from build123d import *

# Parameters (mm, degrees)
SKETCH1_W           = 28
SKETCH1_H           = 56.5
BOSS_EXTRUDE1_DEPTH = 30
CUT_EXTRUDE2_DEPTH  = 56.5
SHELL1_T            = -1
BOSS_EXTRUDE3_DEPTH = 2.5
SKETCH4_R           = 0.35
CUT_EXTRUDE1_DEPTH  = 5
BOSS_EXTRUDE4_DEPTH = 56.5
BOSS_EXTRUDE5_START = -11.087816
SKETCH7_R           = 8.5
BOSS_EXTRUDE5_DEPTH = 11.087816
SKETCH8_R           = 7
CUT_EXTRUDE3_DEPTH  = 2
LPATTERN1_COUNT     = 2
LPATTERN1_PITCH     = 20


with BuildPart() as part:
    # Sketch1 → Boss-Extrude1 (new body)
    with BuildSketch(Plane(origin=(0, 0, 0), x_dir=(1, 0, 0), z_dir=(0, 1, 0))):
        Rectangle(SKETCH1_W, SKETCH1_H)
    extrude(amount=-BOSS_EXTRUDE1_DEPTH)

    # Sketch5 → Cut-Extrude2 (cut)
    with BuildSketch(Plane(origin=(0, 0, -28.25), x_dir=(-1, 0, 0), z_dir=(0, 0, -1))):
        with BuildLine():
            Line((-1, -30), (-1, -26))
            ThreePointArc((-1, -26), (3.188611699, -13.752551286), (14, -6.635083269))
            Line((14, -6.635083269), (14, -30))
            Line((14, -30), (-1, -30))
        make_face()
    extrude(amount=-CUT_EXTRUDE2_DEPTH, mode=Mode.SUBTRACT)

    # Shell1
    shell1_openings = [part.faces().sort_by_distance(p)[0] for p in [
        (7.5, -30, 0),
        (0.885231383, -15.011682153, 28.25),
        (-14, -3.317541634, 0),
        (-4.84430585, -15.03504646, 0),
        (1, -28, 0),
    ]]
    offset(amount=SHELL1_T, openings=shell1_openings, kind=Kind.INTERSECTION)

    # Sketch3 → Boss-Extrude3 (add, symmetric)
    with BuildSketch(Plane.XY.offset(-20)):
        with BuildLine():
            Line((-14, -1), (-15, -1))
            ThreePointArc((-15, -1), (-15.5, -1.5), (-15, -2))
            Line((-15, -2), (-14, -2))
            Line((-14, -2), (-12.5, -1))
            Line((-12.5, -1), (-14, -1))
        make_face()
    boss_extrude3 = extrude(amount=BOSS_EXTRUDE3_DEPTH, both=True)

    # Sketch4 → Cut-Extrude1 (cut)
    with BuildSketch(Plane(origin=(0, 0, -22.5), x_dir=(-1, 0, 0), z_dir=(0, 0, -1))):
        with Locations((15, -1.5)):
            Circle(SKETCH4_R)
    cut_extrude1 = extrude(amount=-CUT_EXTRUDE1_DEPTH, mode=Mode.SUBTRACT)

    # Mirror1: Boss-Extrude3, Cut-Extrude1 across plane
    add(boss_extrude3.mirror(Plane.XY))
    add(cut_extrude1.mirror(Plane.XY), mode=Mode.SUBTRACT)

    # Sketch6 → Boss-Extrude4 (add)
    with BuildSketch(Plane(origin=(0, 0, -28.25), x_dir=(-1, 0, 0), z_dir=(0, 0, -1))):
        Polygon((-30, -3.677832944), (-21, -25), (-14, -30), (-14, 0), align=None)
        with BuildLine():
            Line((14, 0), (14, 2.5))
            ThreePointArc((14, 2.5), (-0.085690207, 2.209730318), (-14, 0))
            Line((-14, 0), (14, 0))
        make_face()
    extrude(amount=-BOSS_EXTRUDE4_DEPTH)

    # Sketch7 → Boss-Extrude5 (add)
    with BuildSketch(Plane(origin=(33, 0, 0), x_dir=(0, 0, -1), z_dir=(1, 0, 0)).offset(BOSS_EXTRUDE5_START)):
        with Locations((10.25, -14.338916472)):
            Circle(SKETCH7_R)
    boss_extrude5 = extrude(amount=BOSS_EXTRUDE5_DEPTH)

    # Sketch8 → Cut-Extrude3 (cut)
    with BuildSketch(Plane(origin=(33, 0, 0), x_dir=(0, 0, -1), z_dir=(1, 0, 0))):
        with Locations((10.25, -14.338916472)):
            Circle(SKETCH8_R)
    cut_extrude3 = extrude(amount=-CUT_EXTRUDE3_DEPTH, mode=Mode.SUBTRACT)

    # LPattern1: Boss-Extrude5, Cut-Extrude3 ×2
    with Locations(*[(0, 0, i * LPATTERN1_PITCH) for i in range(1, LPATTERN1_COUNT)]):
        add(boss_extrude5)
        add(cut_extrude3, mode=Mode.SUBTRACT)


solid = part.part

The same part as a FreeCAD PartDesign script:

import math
import FreeCAD as App
import Part
import Sketcher
from FreeCAD import Vector


def faces_at(feature, points):
    """Names of the faces that lie closest to the given points."""
    faces = feature.Shape.Faces
    near = lambda p: min(range(len(faces)), key=lambda i: faces[i].distToShape(Part.Vertex(*p))[0])
    return sorted({f"Face{near(p) + 1}" for p in points})


def add_polygon(sketch, points):
    """Adds a closed chain of lines whose ends are joined by coincident constraints."""
    first, n = sketch.GeometryCount, len(points)
    for a, b in zip(points, points[1:] + points[:1]):
        sketch.addGeometry(Part.LineSegment(App.Vector(*a, 0), App.Vector(*b, 0)), False)
    for i in range(n):
        sketch.addConstraint(Sketcher.Constraint("Coincident", first + i, 2, first + (i + 1) % n, 1))

doc = App.newDocument("Part")
body = doc.addObject("PartDesign::Body", "Body")

# Sketch on XZ plane
sketch1 = doc.addObject("Sketcher::SketchObject", "Sketch")
body.addObject(sketch1)
sketch1.AttachmentSupport = (doc.XZ_Plane, [""])
sketch1.MapMode = "FlatFace"
add_polygon(sketch1, [(-14, -28), (-14, 28), (14, 28), (14, -28)])  # lines 0-3
sketch1.addConstraint(Sketcher.Constraint("Vertical", 0))
sketch1.addConstraint(Sketcher.Constraint("Horizontal", 1))
sketch1.addConstraint(Sketcher.Constraint("Vertical", 2))
sketch1.addConstraint(Sketcher.Constraint("Horizontal", 3))
sketch1.addConstraint(Sketcher.Constraint("Symmetric", 0, 2, 2, 2, -1, 1))
sketch1.addConstraint(Sketcher.Constraint("DistanceX", 1, 1, 1, 2, 28.0))
sketch1.addConstraint(Sketcher.Constraint("DistanceY", 0, 1, 0, 2, 56.5))
pad1 = doc.addObject("PartDesign::Pad", "Pad")
body.addObject(pad1)
pad1.Profile = sketch1
pad1.Length = 30

# Sketch on XY plane
sketch2 = doc.addObject("Sketcher::SketchObject", "Sketch001")
body.addObject(sketch2)
sketch2.AttachmentSupport = (doc.XY_Plane, [""])
sketch2.MapMode = "FlatFace"
sketch2.AttachmentOffset = App.Placement(Vector(0, 0, -28.25), App.Rotation())
sketch2.addGeometry(Part.LineSegment(Vector(1, -26, 0), Vector(1, -30, 0)), False)
sketch2.addGeometry(Part.LineSegment(Vector(1, -30, 0), Vector(-14, -30, 0)), False)
sketch2.addGeometry(Part.LineSegment(Vector(-14, -30, 0), Vector(-14, -6.6, 0)), False)
sketch2.addGeometry(Part.ArcOfCircle(Part.Circle(Vector(-19, -26, 0), Vector(0, 0, 1), 20), math.radians(0), math.radians(76)), False)
sketch2.addConstraint(Sketcher.Constraint("Coincident", 0, 2, 1, 1))
sketch2.addConstraint(Sketcher.Constraint("Coincident", 1, 2, 2, 1))
sketch2.addConstraint(Sketcher.Constraint("Coincident", 2, 2, 3, 2))
sketch2.addConstraint(Sketcher.Constraint("Tangent", 3, 1, 0, 1))
sketch2.addConstraint(Sketcher.Constraint("Vertical", 0))
sketch2.addConstraint(Sketcher.Constraint("Horizontal", 1))
sketch2.addConstraint(Sketcher.Constraint("Vertical", 2))
sketch2.addConstraint(Sketcher.Constraint("Radius", 3, 20.0))
sketch2.addConstraint(Sketcher.Constraint("DistanceX", 1, 2, 1, 1, 15.0))
sketch2.addConstraint(Sketcher.Constraint("DistanceY", 0, 2, 0, 1, 4.0))
sketch2.addConstraint(Sketcher.Constraint("DistanceX", 3, 3, -1, 1, 19.0))
sketch2.addConstraint(Sketcher.Constraint("DistanceY", 3, 3, -1, 1, 26.0))
pocket1 = doc.addObject("PartDesign::Pocket", "Pocket")
body.addObject(pocket1)
pocket1.Profile = sketch2
pocket1.Length = 56.5
pocket1.Reversed = True
doc.recompute()

thickness = doc.addObject("PartDesign::Thickness", "Thickness")
body.addObject(thickness)
thickness.Base = (pocket1, faces_at(pocket1, [
    (7.5, -30, 0),
    (0, -15, 28.25),
    (-14, -3.318, 0),
    (-3.189, -13.753, 0),
    (1, -28, 0),
]))
thickness.Value = 1
thickness.Reversed = True
thickness.Join = "Intersection"

# Sketch on XY plane
sketch3 = doc.addObject("Sketcher::SketchObject", "Sketch002")
body.addObject(sketch3)
sketch3.AttachmentSupport = (doc.XY_Plane, [""])
sketch3.MapMode = "FlatFace"
sketch3.AttachmentOffset = App.Placement(Vector(0, 0, -20), App.Rotation())
sketch3.addGeometry(Part.ArcOfCircle(Part.Circle(Vector(-15, -1.5, 0), Vector(0, 0, 1), 0.5), math.radians(90), math.radians(270)), False)
sketch3.addGeometry(Part.LineSegment(Vector(-15, -2, 0), Vector(-14, -2, 0)), False)
sketch3.addGeometry(Part.LineSegment(Vector(-14, -2, 0), Vector(-12.5, -1, 0)), False)
sketch3.addGeometry(Part.LineSegment(Vector(-12.5, -1, 0), Vector(-15, -1, 0)), False)
sketch3.addConstraint(Sketcher.Constraint("Tangent", 0, 2, 1, 1))
sketch3.addConstraint(Sketcher.Constraint("Coincident", 1, 2, 2, 1))
sketch3.addConstraint(Sketcher.Constraint("Coincident", 2, 2, 3, 1))
sketch3.addConstraint(Sketcher.Constraint("Tangent", 3, 2, 0, 1))
sketch3.addConstraint(Sketcher.Constraint("Horizontal", 1))
sketch3.addConstraint(Sketcher.Constraint("Horizontal", 3))
sketch3.addConstraint(Sketcher.Constraint("Radius", 0, 0.5))
sketch3.addConstraint(Sketcher.Constraint("DistanceX", 1, 1, 1, 2, 1.0))
sketch3.addConstraint(Sketcher.Constraint("DistanceX", 3, 2, 3, 1, 2.5))
sketch3.addConstraint(Sketcher.Constraint("DistanceX", 0, 3, -1, 1, 15.0))
sketch3.addConstraint(Sketcher.Constraint("DistanceY", 0, 2, -1, 1, 2.0))
pad2 = doc.addObject("PartDesign::Pad", "Pad001")
body.addObject(pad2)
pad2.Profile = sketch3
pad2.Length = 5
pad2.Midplane = True

# Sketch on XY plane
sketch4 = doc.addObject("Sketcher::SketchObject", "Sketch003")
body.addObject(sketch4)
sketch4.AttachmentSupport = (doc.XY_Plane, [""])
sketch4.MapMode = "FlatFace"
sketch4.AttachmentOffset = App.Placement(Vector(0, 0, -22.5), App.Rotation())
sketch4.addGeometry(Part.Circle(Vector(-15, -1.5, 0), Vector(0, 0, 1), 0.35), False)
sketch4.addConstraint(Sketcher.Constraint("Diameter", 0, 0.7))
sketch4.addConstraint(Sketcher.Constraint("DistanceX", 0, 3, -1, 1, 15.0))
sketch4.addConstraint(Sketcher.Constraint("DistanceY", 0, 3, -1, 1, 1.5))
pocket2 = doc.addObject("PartDesign::Pocket", "Pocket001")
body.addObject(pocket2)
pocket2.Profile = sketch4
pocket2.Length = 5
pocket2.Reversed = True
doc.recompute()

mirrored = doc.addObject("PartDesign::Mirrored", "Mirrored")
body.addObject(mirrored)
mirrored.Originals = [pad2, pocket2]
mirrored.MirrorPlane = (doc.XY_Plane, [""])
body.Tip = mirrored

# Sketch on XY plane
sketch5 = doc.addObject("Sketcher::SketchObject", "Sketch004")
body.addObject(sketch5)
sketch5.AttachmentSupport = (doc.XY_Plane, [""])
sketch5.MapMode = "FlatFace"
sketch5.AttachmentOffset = App.Placement(Vector(0, 0, -28.25), App.Rotation())
add_polygon(sketch5, [(30, -3.7), (21, -25), (14, -30), (14, 0)])  # lines 0-3
sketch5.addGeometry(Part.LineSegment(Vector(-14, 0, 0), Vector(-14, 2.5, 0)), False)  # 4
sketch5.addGeometry(Part.ArcOfCircle(Part.Circle(Vector(-9.1, -100.4, 0), Vector(0, 0, 1), 103), math.radians(77.05), math.radians(92.74)), False)  # 5
sketch5.addGeometry(Part.LineSegment(Vector(14, 0, 0), Vector(-14, 0, 0)), False)  # 6
sketch5.addConstraint(Sketcher.Constraint("Coincident", 4, 2, 5, 2))
sketch5.addConstraint(Sketcher.Constraint("Coincident", 5, 1, 6, 1))
sketch5.addConstraint(Sketcher.Constraint("Coincident", 6, 2, 4, 1))
sketch5.addConstraint(Sketcher.Constraint("Vertical", 2))
sketch5.addConstraint(Sketcher.Constraint("Vertical", 4))
sketch5.addConstraint(Sketcher.Constraint("Horizontal", 6))
sketch5.addConstraint(Sketcher.Constraint("Coincident", 5, 1, 2, 2))
sketch5.addConstraint(Sketcher.Constraint("Symmetric", 2, 2, 6, 2, -1, 1))
sketch5.addConstraint(Sketcher.Constraint("Radius", 5, 103.0))
sketch5.addConstraint(Sketcher.Constraint("DistanceX", 6, 2, 6, 1, 28.0))
sketch5.addConstraint(Sketcher.Constraint("DistanceY", 2, 1, 2, 2, 30.0))
sketch5.addConstraint(Sketcher.Constraint("DistanceY", 4, 1, 4, 2, 2.5))
sketch5.addConstraint(Sketcher.Constraint("DistanceX", -1, 1, 0, 2, 21.0))
sketch5.addConstraint(Sketcher.Constraint("DistanceY", 0, 2, -1, 1, 25.0))
sketch5.addConstraint(Sketcher.Constraint("DistanceX", -1, 1, 3, 2, 30.0))
sketch5.addConstraint(Sketcher.Constraint("Distance", 3, 16.417261))
pad3 = doc.addObject("PartDesign::Pad", "Pad002")
body.addObject(pad3)
pad3.Profile = sketch5
pad3.Length = 56.5

# Sketch on YZ plane
sketch6 = doc.addObject("Sketcher::SketchObject", "Sketch005")
body.addObject(sketch6)
sketch6.AttachmentSupport = (doc.YZ_Plane, [""])
sketch6.MapMode = "FlatFace"
sketch6.AttachmentOffset = App.Placement(Vector(0, 0, 21.912184), App.Rotation())
sketch6.addGeometry(Part.Circle(Vector(-14, -10, 0), Vector(0, 0, 1), 8), False)
sketch6.addConstraint(Sketcher.Constraint("Diameter", 0, 17.0))
sketch6.addConstraint(Sketcher.Constraint("DistanceY", 0, 3, -1, 1, 10.25))
sketch6.addConstraint(Sketcher.Constraint("DistanceX", 0, 3, -1, 1, 14.338916))
pad4 = doc.addObject("PartDesign::Pad", "Pad003")
body.addObject(pad4)
pad4.Profile = sketch6
pad4.Length = 11.087816

# Sketch on YZ plane
sketch7 = doc.addObject("Sketcher::SketchObject", "Sketch006")
body.addObject(sketch7)
sketch7.AttachmentSupport = (doc.YZ_Plane, [""])
sketch7.MapMode = "FlatFace"
sketch7.AttachmentOffset = App.Placement(Vector(0, 0, 33), App.Rotation())
sketch7.addGeometry(Part.Circle(Vector(-14, -10, 0), Vector(0, 0, 1), 7), False)
sketch7.addConstraint(Sketcher.Constraint("Diameter", 0, 14.0))
sketch7.addConstraint(Sketcher.Constraint("DistanceY", 0, 3, -1, 1, 10.25))
sketch7.addConstraint(Sketcher.Constraint("DistanceX", 0, 3, -1, 1, 14.338916))
pocket3 = doc.addObject("PartDesign::Pocket", "Pocket002")
body.addObject(pocket3)
pocket3.Profile = sketch7
pocket3.Length = 2
doc.recompute()

linearpattern = doc.addObject("PartDesign::LinearPattern", "LinearPattern")
body.addObject(linearpattern)
linearpattern.Originals = [pad4, pocket3]
linearpattern.Direction = (doc.Z_Axis, [""])
linearpattern.Mode = "offset"
linearpattern.Offset = 20
linearpattern.Occurrences = 2
body.Tip = linearpattern

doc.recompute()
